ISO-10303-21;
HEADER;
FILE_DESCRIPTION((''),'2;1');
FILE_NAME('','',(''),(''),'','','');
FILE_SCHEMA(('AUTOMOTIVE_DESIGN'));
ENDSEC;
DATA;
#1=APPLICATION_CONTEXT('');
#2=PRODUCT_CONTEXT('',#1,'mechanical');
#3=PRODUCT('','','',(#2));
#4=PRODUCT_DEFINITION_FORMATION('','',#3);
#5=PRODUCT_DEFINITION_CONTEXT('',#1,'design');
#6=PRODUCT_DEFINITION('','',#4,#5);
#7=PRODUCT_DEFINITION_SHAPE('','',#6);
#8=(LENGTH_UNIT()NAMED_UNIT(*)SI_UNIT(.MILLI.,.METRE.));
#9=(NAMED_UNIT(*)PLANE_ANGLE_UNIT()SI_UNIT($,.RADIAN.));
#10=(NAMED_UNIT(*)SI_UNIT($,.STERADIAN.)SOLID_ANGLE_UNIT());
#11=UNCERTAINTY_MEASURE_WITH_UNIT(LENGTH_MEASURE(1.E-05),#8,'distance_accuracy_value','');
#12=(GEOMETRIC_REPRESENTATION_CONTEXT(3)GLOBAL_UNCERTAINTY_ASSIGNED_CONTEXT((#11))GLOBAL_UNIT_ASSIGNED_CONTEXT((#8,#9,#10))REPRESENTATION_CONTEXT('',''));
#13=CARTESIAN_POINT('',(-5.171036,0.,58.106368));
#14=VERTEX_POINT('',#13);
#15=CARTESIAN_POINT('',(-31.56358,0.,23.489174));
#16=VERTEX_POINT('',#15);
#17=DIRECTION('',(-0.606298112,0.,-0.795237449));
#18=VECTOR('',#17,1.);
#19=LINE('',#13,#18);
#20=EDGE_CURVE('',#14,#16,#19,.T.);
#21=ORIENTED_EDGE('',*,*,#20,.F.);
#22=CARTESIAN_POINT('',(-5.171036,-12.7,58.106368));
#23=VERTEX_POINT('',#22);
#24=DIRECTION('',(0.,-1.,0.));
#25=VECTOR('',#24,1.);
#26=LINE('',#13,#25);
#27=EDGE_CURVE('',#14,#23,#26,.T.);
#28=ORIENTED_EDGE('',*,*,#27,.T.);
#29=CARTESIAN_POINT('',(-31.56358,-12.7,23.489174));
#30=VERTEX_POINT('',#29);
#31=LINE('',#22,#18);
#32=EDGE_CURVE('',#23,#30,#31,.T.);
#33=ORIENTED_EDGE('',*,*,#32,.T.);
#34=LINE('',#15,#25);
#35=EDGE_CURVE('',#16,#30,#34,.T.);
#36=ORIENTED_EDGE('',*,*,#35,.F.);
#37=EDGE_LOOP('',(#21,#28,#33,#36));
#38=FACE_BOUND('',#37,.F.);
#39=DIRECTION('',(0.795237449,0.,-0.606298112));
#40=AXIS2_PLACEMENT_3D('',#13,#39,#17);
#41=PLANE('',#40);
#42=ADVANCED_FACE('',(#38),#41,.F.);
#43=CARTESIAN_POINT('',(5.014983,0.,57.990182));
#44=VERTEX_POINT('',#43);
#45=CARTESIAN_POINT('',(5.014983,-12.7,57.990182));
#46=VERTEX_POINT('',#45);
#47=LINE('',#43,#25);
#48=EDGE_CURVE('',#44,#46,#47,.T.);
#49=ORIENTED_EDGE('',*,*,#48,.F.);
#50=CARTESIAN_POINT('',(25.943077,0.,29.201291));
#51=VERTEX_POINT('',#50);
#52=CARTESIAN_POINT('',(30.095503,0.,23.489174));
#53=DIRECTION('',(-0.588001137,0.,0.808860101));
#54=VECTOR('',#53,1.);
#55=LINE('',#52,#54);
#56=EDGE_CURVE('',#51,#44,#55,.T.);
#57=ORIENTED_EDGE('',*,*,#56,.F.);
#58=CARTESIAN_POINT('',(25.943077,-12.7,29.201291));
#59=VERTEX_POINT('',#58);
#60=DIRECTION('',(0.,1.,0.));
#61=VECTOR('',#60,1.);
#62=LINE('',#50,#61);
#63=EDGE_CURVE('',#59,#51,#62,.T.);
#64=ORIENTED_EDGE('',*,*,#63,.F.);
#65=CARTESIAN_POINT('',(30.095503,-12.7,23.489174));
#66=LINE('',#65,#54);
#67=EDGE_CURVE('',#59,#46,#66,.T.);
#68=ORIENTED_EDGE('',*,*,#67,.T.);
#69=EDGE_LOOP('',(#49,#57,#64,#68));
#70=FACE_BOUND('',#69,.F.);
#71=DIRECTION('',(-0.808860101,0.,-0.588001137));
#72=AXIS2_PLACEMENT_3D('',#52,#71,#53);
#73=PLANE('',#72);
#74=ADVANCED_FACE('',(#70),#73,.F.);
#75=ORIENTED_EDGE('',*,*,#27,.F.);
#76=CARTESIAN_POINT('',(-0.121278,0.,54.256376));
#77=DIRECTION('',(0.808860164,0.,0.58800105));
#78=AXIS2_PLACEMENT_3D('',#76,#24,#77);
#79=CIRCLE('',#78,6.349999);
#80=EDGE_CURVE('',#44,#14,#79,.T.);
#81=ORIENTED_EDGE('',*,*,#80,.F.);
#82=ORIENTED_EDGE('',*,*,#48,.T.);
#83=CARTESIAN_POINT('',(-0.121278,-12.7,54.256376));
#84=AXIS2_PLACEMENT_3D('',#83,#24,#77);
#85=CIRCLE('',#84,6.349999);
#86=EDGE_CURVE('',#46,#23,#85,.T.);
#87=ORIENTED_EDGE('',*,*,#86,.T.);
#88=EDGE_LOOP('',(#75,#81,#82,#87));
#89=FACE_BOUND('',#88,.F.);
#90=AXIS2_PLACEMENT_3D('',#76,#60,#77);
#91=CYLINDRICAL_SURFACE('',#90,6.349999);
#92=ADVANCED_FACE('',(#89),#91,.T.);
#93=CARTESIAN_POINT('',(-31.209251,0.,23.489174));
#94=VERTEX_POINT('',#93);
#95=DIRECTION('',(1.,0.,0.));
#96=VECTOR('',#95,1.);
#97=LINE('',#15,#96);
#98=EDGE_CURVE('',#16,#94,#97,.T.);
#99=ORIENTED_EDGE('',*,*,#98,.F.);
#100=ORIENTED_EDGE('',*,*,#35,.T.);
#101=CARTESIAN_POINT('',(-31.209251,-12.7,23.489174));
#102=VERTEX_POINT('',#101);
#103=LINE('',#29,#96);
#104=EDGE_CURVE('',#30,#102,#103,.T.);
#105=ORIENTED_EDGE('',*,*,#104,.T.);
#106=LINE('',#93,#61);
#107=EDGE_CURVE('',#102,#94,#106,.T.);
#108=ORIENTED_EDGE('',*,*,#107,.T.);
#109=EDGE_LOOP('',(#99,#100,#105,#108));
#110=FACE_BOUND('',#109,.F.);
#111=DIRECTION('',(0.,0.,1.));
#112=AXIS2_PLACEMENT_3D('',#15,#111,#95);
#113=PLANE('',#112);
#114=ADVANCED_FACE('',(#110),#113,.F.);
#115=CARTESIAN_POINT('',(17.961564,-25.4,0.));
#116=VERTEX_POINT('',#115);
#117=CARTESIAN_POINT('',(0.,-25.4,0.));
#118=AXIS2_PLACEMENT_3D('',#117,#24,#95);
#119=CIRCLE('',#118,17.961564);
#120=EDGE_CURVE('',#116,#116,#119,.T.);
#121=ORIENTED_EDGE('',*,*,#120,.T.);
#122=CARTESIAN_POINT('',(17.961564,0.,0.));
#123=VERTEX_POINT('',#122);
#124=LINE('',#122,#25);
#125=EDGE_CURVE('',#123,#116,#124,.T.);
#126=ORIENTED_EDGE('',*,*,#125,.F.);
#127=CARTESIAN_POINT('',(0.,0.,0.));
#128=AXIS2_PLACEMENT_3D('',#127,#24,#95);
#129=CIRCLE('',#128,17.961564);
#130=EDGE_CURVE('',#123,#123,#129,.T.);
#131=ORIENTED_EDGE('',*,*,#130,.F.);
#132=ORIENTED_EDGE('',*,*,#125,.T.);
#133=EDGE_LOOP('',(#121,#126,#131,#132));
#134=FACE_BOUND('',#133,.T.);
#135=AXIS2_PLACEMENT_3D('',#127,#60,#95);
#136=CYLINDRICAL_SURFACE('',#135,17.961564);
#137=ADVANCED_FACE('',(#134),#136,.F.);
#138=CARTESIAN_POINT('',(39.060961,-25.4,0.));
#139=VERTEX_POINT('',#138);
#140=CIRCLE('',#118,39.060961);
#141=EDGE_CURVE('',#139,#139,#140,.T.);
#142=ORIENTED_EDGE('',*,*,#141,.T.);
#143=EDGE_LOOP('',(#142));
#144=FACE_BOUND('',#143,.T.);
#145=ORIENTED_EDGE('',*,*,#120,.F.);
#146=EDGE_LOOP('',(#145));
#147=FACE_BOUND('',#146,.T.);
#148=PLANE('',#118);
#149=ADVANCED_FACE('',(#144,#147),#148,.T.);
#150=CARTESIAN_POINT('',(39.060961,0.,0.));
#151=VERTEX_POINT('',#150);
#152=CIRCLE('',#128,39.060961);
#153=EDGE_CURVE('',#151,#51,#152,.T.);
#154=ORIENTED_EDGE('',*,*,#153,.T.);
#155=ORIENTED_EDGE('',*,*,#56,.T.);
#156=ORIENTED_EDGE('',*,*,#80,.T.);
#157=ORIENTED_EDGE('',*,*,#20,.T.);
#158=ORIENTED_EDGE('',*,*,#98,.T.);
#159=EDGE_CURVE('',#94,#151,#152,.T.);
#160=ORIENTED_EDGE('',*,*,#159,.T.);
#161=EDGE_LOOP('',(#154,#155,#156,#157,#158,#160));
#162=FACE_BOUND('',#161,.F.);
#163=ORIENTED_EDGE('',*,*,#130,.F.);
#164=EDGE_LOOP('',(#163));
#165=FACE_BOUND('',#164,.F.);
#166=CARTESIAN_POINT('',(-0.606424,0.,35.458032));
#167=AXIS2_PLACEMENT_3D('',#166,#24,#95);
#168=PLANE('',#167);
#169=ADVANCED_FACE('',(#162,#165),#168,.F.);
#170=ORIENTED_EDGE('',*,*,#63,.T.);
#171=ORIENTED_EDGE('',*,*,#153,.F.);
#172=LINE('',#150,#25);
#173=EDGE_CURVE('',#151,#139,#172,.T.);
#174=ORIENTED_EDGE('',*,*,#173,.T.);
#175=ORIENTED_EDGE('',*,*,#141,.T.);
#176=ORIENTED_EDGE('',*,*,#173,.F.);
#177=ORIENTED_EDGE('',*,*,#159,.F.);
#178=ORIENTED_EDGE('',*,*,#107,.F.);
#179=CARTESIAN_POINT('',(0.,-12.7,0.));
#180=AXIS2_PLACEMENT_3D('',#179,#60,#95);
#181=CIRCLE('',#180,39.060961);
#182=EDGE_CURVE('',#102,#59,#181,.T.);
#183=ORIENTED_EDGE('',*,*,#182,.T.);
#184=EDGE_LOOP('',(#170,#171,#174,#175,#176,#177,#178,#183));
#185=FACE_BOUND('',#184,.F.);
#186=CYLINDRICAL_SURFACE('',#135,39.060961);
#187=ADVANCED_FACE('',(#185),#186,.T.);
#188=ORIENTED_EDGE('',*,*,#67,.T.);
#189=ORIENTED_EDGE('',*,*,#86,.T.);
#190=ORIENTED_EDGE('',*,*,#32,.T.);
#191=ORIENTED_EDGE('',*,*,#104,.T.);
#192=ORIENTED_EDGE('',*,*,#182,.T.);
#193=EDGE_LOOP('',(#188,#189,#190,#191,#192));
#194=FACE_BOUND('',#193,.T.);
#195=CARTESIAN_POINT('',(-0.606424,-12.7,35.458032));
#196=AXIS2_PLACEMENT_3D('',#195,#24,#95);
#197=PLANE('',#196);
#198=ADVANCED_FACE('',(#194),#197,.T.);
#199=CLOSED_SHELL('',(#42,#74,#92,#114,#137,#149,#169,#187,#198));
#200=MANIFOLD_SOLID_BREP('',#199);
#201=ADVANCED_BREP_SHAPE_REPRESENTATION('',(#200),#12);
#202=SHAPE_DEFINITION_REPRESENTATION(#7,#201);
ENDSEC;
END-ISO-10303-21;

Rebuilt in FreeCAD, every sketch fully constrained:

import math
import FreeCAD as App
import Part
import Sketcher
from FreeCAD import Vector
Q = App.Units.Quantity

doc = App.newDocument("Part")
body = doc.addObject("PartDesign::Body", "Body")

# Sketch on XZ plane
sketch1 = body.newObject("Sketcher::SketchObject", "Sketch")
sketch1.AttachmentSupport = (doc.getObject("XZ_Plane"), [""])
sketch1.MapMode = "FlatFace"
sketch1.addGeometry(Part.Circle(Vector(0, 0, 0), Vector(0, 0, 1), 39.060961), False)
sketch1.addGeometry(Part.Circle(Vector(0, 0, 0), Vector(0, 0, 1), 17.961564), False)
sketch1.addConstraint(Sketcher.Constraint("Coincident", 0, 3, -1, 1))
sketch1.addConstraint(Sketcher.Constraint("Coincident", 1, 3, -1, 1))
sketch1.addConstraint(Sketcher.Constraint("Diameter", 0, 78.121922))
sketch1.addConstraint(Sketcher.Constraint("Diameter", 1, 35.923128))
pad1 = body.newObject("PartDesign::Pad", "Pad")
pad1.Profile = sketch1
pad1.Length = Q("1 in")

# Sketch on XZ plane
sketch2 = body.newObject("Sketcher::SketchObject", "Sketch001")
sketch2.AttachmentSupport = (doc.getObject("XZ_Plane"), [""])
sketch2.MapMode = "FlatFace"
sketch2.addGeometry(Part.LineSegment(Vector(-5.171036, 58.106368, 0), Vector(-31.56358, 23.489174, 0)), False)
sketch2.addGeometry(Part.LineSegment(Vector(-31.56358, 23.489174, 0), Vector(30.095503, 23.489174, 0)), False)
sketch2.addGeometry(Part.LineSegment(Vector(30.095503, 23.489174, 0), Vector(5.014983, 57.990182, 0)), False)
sketch2.addGeometry(Part.ArcOfCircle(Part.Circle(Vector(-0.121278, 54.256376, 0), Vector(0, 0, 1), 6.349999), math.radians(36.015285), math.radians(142.677693)), False)
sketch2.addConstraint(Sketcher.Constraint("Coincident", 0, 2, 1, 1))
sketch2.addConstraint(Sketcher.Constraint("Coincident", 1, 2, 2, 1))
sketch2.addConstraint(Sketcher.Constraint("Tangent", 2, 2, 3, 1))
sketch2.addConstraint(Sketcher.Constraint("Tangent", 3, 2, 0, 1))
sketch2.addConstraint(Sketcher.Constraint("Horizontal", 1))
sketch2.addConstraint(Sketcher.Constraint("Radius", 3, Q("0.25 in")))
sketch2.addConstraint(Sketcher.Constraint("DistanceX", 0, 2, 3, 3, 31.442302))
sketch2.addConstraint(Sketcher.Constraint("DistanceY", 0, 2, 3, 3, 30.767202))
sketch2.addConstraint(Sketcher.Constraint("DistanceX", 1, 1, 1, 2, 61.659083))
sketch2.addConstraint(Sketcher.Constraint("DistanceX", 3, 3, -1, 1, 0.121278))
sketch2.addConstraint(Sketcher.Constraint("DistanceY", -1, 1, 2, 2, 57.990182))
pad2 = body.newObject("PartDesign::Pad", "Pad001")
pad2.Profile = sketch2
pad2.Length = Q("0.5 in")

doc.recompute()
